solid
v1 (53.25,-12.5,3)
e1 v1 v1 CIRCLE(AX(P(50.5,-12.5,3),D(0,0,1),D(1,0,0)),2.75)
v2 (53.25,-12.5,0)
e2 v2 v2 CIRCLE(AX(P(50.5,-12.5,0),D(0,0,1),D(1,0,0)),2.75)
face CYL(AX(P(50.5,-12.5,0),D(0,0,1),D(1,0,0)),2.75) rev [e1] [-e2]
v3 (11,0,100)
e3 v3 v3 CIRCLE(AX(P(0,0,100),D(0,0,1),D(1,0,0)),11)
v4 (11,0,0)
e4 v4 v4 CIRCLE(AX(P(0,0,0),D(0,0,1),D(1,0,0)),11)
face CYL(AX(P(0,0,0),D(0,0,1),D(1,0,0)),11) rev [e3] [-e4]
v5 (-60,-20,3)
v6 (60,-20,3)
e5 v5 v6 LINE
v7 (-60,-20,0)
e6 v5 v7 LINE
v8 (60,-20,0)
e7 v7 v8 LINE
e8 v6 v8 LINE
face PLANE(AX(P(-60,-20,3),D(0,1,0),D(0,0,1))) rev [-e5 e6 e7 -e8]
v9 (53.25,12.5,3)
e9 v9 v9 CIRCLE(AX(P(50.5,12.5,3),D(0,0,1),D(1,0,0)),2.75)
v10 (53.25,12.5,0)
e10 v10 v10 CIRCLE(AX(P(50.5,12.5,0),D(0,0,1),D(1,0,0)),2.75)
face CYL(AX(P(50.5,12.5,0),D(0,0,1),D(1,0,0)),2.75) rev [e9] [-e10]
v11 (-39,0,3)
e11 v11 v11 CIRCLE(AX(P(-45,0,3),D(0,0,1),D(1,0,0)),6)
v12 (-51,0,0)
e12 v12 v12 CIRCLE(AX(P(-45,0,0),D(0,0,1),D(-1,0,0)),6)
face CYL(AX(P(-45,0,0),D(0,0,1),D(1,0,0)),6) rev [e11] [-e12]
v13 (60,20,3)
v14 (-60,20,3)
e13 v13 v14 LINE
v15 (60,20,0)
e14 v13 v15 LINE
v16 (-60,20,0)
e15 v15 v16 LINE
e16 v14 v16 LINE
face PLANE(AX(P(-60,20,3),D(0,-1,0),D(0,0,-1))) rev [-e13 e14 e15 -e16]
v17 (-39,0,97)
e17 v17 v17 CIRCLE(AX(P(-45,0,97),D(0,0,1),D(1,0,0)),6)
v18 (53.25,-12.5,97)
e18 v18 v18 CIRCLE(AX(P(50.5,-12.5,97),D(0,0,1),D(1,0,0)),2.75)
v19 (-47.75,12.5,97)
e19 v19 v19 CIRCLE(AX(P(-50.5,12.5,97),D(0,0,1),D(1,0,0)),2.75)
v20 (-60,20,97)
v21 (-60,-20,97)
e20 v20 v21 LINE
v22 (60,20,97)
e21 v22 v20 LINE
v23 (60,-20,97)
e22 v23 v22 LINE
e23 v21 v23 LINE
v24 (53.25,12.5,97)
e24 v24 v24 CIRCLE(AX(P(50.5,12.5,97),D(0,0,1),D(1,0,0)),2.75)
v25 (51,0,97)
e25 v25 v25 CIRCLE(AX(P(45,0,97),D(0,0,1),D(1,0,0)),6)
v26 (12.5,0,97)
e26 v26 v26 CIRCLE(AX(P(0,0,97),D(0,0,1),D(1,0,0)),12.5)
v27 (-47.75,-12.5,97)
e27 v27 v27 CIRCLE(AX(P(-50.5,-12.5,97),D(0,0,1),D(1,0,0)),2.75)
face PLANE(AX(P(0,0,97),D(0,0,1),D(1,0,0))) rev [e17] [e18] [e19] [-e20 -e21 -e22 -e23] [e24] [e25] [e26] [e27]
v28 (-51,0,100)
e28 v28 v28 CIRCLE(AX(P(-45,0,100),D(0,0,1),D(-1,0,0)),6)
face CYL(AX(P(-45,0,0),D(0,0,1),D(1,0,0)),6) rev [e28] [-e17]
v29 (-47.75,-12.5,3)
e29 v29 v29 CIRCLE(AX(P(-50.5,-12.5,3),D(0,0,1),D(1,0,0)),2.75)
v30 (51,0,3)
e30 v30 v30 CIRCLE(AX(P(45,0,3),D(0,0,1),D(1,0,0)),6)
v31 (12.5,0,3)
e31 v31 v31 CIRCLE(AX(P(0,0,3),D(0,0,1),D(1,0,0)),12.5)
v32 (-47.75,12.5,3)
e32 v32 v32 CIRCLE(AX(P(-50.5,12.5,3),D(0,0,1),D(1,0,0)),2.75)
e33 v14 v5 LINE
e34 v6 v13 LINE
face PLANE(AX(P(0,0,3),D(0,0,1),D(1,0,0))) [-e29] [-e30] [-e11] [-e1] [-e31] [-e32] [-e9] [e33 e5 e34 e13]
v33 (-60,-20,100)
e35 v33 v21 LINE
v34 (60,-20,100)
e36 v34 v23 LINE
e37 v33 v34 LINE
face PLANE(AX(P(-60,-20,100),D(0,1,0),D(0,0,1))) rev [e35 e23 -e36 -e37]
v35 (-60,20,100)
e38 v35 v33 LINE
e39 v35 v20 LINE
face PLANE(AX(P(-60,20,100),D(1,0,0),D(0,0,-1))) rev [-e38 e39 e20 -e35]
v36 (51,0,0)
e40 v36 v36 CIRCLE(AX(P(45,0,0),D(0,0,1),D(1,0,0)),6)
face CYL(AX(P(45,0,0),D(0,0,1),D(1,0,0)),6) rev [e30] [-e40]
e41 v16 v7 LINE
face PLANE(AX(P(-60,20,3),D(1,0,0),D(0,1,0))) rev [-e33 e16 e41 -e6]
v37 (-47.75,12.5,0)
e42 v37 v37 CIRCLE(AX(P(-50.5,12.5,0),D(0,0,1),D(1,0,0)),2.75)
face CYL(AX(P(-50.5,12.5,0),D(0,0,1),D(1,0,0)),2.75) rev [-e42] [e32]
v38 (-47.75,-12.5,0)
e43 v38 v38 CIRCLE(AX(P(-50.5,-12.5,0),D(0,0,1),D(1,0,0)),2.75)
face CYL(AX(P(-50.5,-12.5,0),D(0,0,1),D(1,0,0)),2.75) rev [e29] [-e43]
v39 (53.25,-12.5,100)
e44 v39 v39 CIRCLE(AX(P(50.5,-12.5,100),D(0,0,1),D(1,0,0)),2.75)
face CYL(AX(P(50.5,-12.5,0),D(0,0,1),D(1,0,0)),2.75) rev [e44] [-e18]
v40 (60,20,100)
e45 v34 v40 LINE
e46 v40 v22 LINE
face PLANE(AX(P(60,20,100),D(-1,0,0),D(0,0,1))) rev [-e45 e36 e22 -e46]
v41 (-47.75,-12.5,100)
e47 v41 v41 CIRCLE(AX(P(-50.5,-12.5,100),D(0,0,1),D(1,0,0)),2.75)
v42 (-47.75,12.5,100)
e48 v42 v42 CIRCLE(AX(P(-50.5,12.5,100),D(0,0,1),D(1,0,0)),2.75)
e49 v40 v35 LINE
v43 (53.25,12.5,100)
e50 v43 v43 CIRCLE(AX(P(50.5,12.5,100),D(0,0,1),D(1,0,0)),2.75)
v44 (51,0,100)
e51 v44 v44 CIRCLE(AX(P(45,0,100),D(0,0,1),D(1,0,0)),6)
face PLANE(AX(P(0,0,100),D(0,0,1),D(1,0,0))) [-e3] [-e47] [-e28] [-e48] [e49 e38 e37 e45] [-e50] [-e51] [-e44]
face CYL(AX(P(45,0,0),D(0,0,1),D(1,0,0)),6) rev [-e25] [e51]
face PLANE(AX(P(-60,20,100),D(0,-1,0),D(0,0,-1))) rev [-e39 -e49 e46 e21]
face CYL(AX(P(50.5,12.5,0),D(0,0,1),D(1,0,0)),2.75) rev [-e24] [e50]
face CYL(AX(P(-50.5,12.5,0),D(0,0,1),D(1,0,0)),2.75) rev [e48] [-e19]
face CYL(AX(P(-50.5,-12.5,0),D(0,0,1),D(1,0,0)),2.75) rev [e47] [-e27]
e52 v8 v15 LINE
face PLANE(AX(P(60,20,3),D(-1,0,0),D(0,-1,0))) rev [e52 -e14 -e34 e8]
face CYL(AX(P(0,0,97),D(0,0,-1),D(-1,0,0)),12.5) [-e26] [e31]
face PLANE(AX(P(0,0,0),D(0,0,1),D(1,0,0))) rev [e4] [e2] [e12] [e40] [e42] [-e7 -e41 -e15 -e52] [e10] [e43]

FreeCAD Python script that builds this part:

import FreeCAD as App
import Part
import Sketcher

V = App.Vector
Q = App.Units.Quantity


def add_polygon(sketch, points):
    """Adds a closed chain of lines whose ends are joined by coincident constraints."""
    first, n = sketch.GeometryCount, len(points)
    for a, b in zip(points, points[1:] + points[:1]):
        sketch.addGeometry(Part.LineSegment(App.Vector(*a, 0), App.Vector(*b, 0)), False)
    for i in range(n):
        sketch.addConstraint(Sketcher.Constraint("Coincident", first + i, 2, first + (i + 1) % n, 1))

doc = App.newDocument("Part")
body = doc.addObject("PartDesign::Body", "Body")

sketch1 = body.newObject("Sketcher::SketchObject", "Sketch")
sketch1.AttachmentSupport = (doc.getObject("XY_Plane"), [""])
sketch1.MapMode = "FlatFace"
add_polygon(sketch1, [(-60, 20), (-60, -20), (60, -20), (60, 20)])
sketch1.addConstraint([
    Sketcher.Constraint("Vertical", 0),
    Sketcher.Constraint("Horizontal", 1),
    Sketcher.Constraint("Vertical", 2),
    Sketcher.Constraint("Horizontal", 3),
    Sketcher.Constraint("Symmetric", 0, 2, 2, 2, -1, 1),
    Sketcher.Constraint("DistanceX", 1, 1, 1, 2, Q("120 mm")),
    Sketcher.Constraint("DistanceY", 0, 2, 0, 1, Q("40 mm")),
])
pad1 = body.newObject("PartDesign::Pad", "Pad")
pad1.Profile = sketch1
pad1.Length = 3

sketch2 = body.newObject("Sketcher::SketchObject", "Sketch001")
sketch2.AttachmentSupport = (doc.getObject("XY_Plane"), [""])
sketch2.MapMode = "FlatFace"
sketch2.AttachmentOffset = App.Placement(V(0, 0, 3), App.Rotation())
sketch2.addGeometry(Part.Circle(V(0, 0, 0), V(0, 0, 1), 12), False)
sketch2.addConstraint([
    Sketcher.Constraint("Coincident", 0, 3, -1, 1),
    Sketcher.Constraint("Diameter", 0, Q("25 mm")),
])
pad2 = body.newObject("PartDesign::Pad", "Pad001")
pad2.Profile = sketch2
pad2.Length = 94

sketch3 = body.newObject("Sketcher::SketchObject", "Sketch002")
sketch3.AttachmentSupport = (doc.getObject("XY_Plane"), [""])
sketch3.MapMode = "FlatFace"
sketch3.AttachmentOffset = App.Placement(V(0, 0, 97), App.Rotation())
add_polygon(sketch3, [(-60, 20), (-60, -20), (60, -20), (60, 20)])
sketch3.addConstraint([
    Sketcher.Constraint("Vertical", 0),
    Sketcher.Constraint("Horizontal", 1),
    Sketcher.Constraint("Vertical", 2),
    Sketcher.Constraint("Horizontal", 3),
    Sketcher.Constraint("Symmetric", 0, 2, 2, 2, -1, 1),
    Sketcher.Constraint("DistanceX", 1, 1, 1, 2, Q("120 mm")),
    Sketcher.Constraint("DistanceY", 0, 2, 0, 1, Q("40 mm")),
])
pad3 = body.newObject("PartDesign::Pad", "Pad002")
pad3.Profile = sketch3
pad3.Length = 3

sketch4 = body.newObject("Sketcher::SketchObject", "Sketch003")
sketch4.AttachmentSupport = (doc.getObject("XY_Plane"), [""])
sketch4.MapMode = "FlatFace"
sketch4.AttachmentOffset = App.Placement(V(0, 0, 100), App.Rotation())
sketch4.addGeometry(Part.Circle(V(0, 0, 0), V(0, 0, 1), 11), False)
sketch4.addConstraint([
    Sketcher.Constraint("Coincident", 0, 3, -1, 1),
    Sketcher.Constraint("Diameter", 0, Q("22 mm")),
])
pocket1 = body.newObject("PartDesign::Pocket", "Pocket")
pocket1.Profile = sketch4
pocket1.Type = "ThroughAll"
pocket1.Midplane = True

sketch5 = body.newObject("Sketcher::SketchObject", "Sketch004")
sketch5.AttachmentSupport = (doc.getObject("XY_Plane"), [""])
sketch5.MapMode = "FlatFace"
sketch5.AttachmentOffset = App.Placement(V(0, 0, 100), App.Rotation())
sketch5.addGeometry([
    Part.Circle(V(-50.5, 12.5, 0), V(0, 0, 1), 2.8),
    Part.Circle(V(-50.5, -12.5, 0), V(0, 0, 1), 2.8),
    Part.Circle(V(50.5, 12.5, 0), V(0, 0, 1), 2.8),
    Part.Circle(V(50.5, -12.5, 0), V(0, 0, 1), 2.8),
], False)
sketch5.addConstraint([
    Sketcher.Constraint("Equal", 0, 1),
    Sketcher.Constraint("Equal", 1, 2),
    Sketcher.Constraint("Equal", 2, 3),
    Sketcher.Constraint("Symmetric", 1, 3, 2, 3, -1, 1),
    Sketcher.Constraint("Symmetric", 0, 3, 3, 3, -1, 1),
    Sketcher.Constraint("Symmetric", 0, 3, 2, 3, -2),
    Sketcher.Constraint("Diameter", 0, Q("5.5 mm")),
    Sketcher.Constraint("DistanceY", 1, 3, 0, 3, Q("25 mm")),
    Sketcher.Constraint("DistanceX", 0, 3, 2, 3, Q("101 mm")),
])
pocket2 = body.newObject("PartDesign::Pocket", "Pocket001")
pocket2.Profile = sketch5
pocket2.Type = "ThroughAll"

sketch6 = body.newObject("Sketcher::SketchObject", "Sketch005")
sketch6.AttachmentSupport = (doc.getObject("XY_Plane"), [""])
sketch6.MapMode = "FlatFace"
sketch6.AttachmentOffset = App.Placement(V(0, 0, 100), App.Rotation())
sketch6.addGeometry([
    Part.Circle(V(45, 0, 0), V(0, 0, 1), 6),
    Part.Circle(V(-45, 0, 0), V(0, 0, 1), 6),
], False)
sketch6.addConstraint([
    Sketcher.Constraint("Equal", 0, 1),
    Sketcher.Constraint("Symmetric", 0, 3, 1, 3, -1, 1),
    Sketcher.Constraint("PointOnObject", 0, 3, -1),
    Sketcher.Constraint("Diameter", 0, Q("12 mm")),
    Sketcher.Constraint("DistanceX", -1, 1, 0, 3, Q("45 mm")),
])
pocket3 = body.newObject("PartDesign::Pocket", "Pocket002")
pocket3.Profile = sketch6
pocket3.Type = "ThroughAll"

doc.recompute()
